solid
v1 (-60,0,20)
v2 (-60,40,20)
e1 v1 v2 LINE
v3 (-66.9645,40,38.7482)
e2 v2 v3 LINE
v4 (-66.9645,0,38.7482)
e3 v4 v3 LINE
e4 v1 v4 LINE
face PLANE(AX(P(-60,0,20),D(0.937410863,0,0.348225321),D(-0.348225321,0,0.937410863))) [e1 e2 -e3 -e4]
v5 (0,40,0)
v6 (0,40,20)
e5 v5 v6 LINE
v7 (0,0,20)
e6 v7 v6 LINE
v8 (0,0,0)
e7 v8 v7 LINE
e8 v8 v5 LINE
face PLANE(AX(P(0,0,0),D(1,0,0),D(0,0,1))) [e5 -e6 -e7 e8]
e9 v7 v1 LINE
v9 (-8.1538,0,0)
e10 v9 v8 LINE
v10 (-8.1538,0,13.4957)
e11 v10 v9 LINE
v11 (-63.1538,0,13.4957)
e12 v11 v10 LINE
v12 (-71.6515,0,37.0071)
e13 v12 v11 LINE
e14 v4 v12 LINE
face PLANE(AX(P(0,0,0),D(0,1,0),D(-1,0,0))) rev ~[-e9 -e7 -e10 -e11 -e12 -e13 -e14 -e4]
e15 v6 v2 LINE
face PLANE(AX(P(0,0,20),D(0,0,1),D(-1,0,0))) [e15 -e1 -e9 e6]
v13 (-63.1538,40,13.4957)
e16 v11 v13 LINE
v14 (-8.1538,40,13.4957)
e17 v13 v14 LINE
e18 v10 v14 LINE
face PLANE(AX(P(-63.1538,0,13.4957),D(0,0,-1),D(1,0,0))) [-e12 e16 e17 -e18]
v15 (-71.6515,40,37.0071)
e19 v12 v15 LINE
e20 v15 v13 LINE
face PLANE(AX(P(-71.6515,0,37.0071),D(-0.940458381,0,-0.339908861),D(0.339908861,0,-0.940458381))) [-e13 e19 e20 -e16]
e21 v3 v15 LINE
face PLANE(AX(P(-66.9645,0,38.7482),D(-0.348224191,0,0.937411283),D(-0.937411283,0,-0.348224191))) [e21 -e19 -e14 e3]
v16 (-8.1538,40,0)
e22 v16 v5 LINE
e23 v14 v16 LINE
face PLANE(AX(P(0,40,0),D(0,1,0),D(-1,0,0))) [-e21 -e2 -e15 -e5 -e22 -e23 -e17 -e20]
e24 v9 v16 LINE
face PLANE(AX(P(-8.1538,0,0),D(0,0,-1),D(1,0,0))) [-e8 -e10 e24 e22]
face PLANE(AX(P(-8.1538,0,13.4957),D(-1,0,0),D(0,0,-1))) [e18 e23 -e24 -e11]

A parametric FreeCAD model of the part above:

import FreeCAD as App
import Part
import Sketcher

V = App.Vector
Q = App.Units.Quantity


def add_polygon(sketch, points):
    """Adds a closed chain of lines whose ends are joined by coincident constraints."""
    first, n = sketch.GeometryCount, len(points)
    for a, b in zip(points, points[1:] + points[:1]):
        sketch.addGeometry(Part.LineSegment(App.Vector(*a, 0), App.Vector(*b, 0)), False)
    for i in range(n):
        sketch.addConstraint(Sketcher.Constraint("Coincident", first + i, 2, first + (i + 1) % n, 1))

doc = App.newDocument("Part")
body = doc.addObject("PartDesign::Body", "Body")

# Sketch on XZ plane
sketch1 = doc.addObject("Sketcher::SketchObject", "Sketch")
body.addObject(sketch1)
sketch1.AttachmentSupport = (doc.XZ_Plane, [""])
sketch1.MapMode = "FlatFace"
add_polygon(sketch1, [(0, 20), (0, 0), (-8.2, 0), (-8.2, 13.5), (-63.2, 13.5), (-71.7, 37), (-67, 38.7), (-60, 20)])  # lines 0-7
sketch1.addConstraint([
    Sketcher.Constraint("Vertical", 0),
    Sketcher.Constraint("Horizontal", 1),
    Sketcher.Constraint("Vertical", 2),
    Sketcher.Constraint("Horizontal", 3),
    Sketcher.Constraint("Horizontal", 7),
    Sketcher.Constraint("Coincident", 0, 2, -1, 1),
    Sketcher.Constraint("Perpendicular", 5, 6),
    Sketcher.Constraint("DistanceX", 3, 2, 3, 1, 55.0),
    Sketcher.Constraint("DistanceX", 7, 1, 7, 2, 60.0),
    Sketcher.Constraint("DistanceY", 0, 2, 0, 1, 20.0),
    Sketcher.Constraint("Distance", 4, 25.0),
    Sketcher.Constraint("Distance", 5, 5.0),
    Sketcher.Constraint("Distance", 6, 20.0),
    Sketcher.Constraint("Angle", 6, Q("-69.6212 deg")),
    Sketcher.Constraint("DistanceX", 1, 2, 1, 1, 8.1538),
])
pad1 = doc.addObject("PartDesign::Pad", "Pad")
body.addObject(pad1)
pad1.Profile = sketch1
pad1.Length = 40
pad1.Reversed = True

doc.recompute()
